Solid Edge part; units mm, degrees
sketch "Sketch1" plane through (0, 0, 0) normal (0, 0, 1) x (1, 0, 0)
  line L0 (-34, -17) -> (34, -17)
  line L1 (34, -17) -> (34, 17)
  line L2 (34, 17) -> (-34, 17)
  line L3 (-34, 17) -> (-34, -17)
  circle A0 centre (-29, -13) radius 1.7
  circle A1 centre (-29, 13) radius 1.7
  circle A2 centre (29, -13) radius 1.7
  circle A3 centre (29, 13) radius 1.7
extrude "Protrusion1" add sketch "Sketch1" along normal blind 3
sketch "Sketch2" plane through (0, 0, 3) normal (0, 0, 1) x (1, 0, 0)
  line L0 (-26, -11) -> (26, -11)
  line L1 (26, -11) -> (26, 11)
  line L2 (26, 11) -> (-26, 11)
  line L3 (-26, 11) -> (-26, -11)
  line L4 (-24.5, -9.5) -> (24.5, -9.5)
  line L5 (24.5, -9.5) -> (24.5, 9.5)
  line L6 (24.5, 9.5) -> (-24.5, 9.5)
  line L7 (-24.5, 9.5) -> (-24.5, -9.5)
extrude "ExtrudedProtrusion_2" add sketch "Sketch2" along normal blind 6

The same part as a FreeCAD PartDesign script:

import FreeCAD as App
import Part
import Sketcher
from FreeCAD import Vector


def add_polygon(sketch, points):
    """Adds a closed chain of lines whose ends are joined by coincident constraints."""
    first, n = sketch.GeometryCount, len(points)
    for a, b in zip(points, points[1:] + points[:1]):
        sketch.addGeometry(Part.LineSegment(App.Vector(*a, 0), App.Vector(*b, 0)), False)
    for i in range(n):
        sketch.addConstraint(Sketcher.Constraint("Coincident", first + i, 2, first + (i + 1) % n, 1))

doc = App.newDocument("Part")
params = doc.addObject("Spreadsheet::Sheet", "Params")
for row, (alias, value) in enumerate([
    ("sketch1_diameter", "3.4 mm"),
    ("sketch1_width", "68 mm"),
    ("sketch1_height", "34 mm"),
    ("pad1_length", "3 mm"),
    ("sketch2_width", "52 mm"),
    ("sketch2_width2", "49 mm"),
    ("sketch2_height", "22 mm"),
    ("sketch2_height2", "19 mm"),
    ("pad2_length", "6 mm"),
], start=1):
    params.set(f"A{row}", alias)
    params.set(f"B{row}", "=" + value)
    params.setAlias(f"B{row}", alias)

body = doc.addObject("PartDesign::Body", "Body")

sketch1 = body.newObject("Sketcher::SketchObject", "Sketch")
sketch1.AttachmentSupport = (doc.getObject("XY_Plane"), [""])
sketch1.MapMode = "FlatFace"
add_polygon(sketch1, [(-34, 17), (-34, -17), (34, -17), (34, 17)])
sketch1.addGeometry(Part.Circle(Vector(-29, -13, 0), Vector(0, 0, 1), 1.7), False)
sketch1.addGeometry(Part.Circle(Vector(29, -13, 0), Vector(0, 0, 1), 1.7), False)
sketch1.addGeometry(Part.Circle(Vector(-29, 13, 0), Vector(0, 0, 1), 1.7), False)
sketch1.addGeometry(Part.Circle(Vector(29, 13, 0), Vector(0, 0, 1), 1.7), False)
sketch1.addConstraint([
    Sketcher.Constraint("Vertical", 0),
    Sketcher.Constraint("Horizontal", 1),
    Sketcher.Constraint("Vertical", 2),
    Sketcher.Constraint("Horizontal", 3),
    Sketcher.Constraint("Equal", 4, 5),
    Sketcher.Constraint("Equal", 5, 6),
    Sketcher.Constraint("Equal", 6, 7),
    Sketcher.Constraint("Symmetric", 5, 3, 6, 3, -1, 1),
    Sketcher.Constraint("Symmetric", 4, 3, 7, 3, -1, 1),
    Sketcher.Constraint("Symmetric", 0, 2, 2, 2, -1, 1),
    Sketcher.Constraint("Symmetric", 4, 3, 5, 3, -2),
    Sketcher.Constraint("Diameter", 4, 3.4),
    Sketcher.Constraint("DistanceX", 1, 1, 1, 2, 68.0),
    Sketcher.Constraint("DistanceY", 0, 2, 0, 1, 34.0),
    Sketcher.Constraint("DistanceX", 4, 3, -1, 1, 29.0),
    Sketcher.Constraint("DistanceY", 4, 3, -1, 1, 13.0),
])
sketch1.setExpression("Constraints[15]", "Params.sketch1_diameter")
sketch1.setExpression("Constraints[16]", "Params.sketch1_width")
sketch1.setExpression("Constraints[17]", "Params.sketch1_height")
pad1 = body.newObject("PartDesign::Pad", "Pad")
pad1.Profile = sketch1
pad1.setExpression("Length", "Params.pad1_length")

sketch2 = body.newObject("Sketcher::SketchObject", "Sketch001")
sketch2.AttachmentSupport = (doc.getObject("XY_Plane"), [""])
sketch2.MapMode = "FlatFace"
sketch2.AttachmentOffset = App.Placement(Vector(0, 0, 3), App.Rotation())
add_polygon(sketch2, [(-26, 11), (-26, -11), (26, -11), (26, 11)])
add_polygon(sketch2, [(24, -10), (-24, -10), (-24, 10), (24, 10)])
sketch2.addConstraint([
    Sketcher.Constraint("Vertical", 0),
    Sketcher.Constraint("Horizontal", 1),
    Sketcher.Constraint("Vertical", 2),
    Sketcher.Constraint("Horizontal", 3),
    Sketcher.Constraint("Horizontal", 4),
    Sketcher.Constraint("Vertical", 5),
    Sketcher.Constraint("Horizontal", 6),
    Sketcher.Constraint("Vertical", 7),
    Sketcher.Constraint("Symmetric", 0, 2, 2, 2, -1, 1),
    Sketcher.Constraint("Symmetric", 4, 2, 6, 2, -1, 1),
    Sketcher.Constraint("DistanceX", 1, 1, 1, 2, 52.0),
    Sketcher.Constraint("DistanceX", 4, 2, 4, 1, 49.0),
    Sketcher.Constraint("DistanceY", 0, 2, 0, 1, 22.0),
    Sketcher.Constraint("DistanceY", 5, 1, 5, 2, 19.0),
])
sketch2.setExpression("Constraints[18]", "Params.sketch2_width")
sketch2.setExpression("Constraints[19]", "Params.sketch2_width2")
sketch2.setExpression("Constraints[20]", "Params.sketch2_height")
sketch2.setExpression("Constraints[21]", "Params.sketch2_height2")
pad2 = body.newObject("PartDesign::Pad", "Pad001")
pad2.Profile = sketch2
pad2.setExpression("Length", "Params.pad2_length")

doc.recompute()
